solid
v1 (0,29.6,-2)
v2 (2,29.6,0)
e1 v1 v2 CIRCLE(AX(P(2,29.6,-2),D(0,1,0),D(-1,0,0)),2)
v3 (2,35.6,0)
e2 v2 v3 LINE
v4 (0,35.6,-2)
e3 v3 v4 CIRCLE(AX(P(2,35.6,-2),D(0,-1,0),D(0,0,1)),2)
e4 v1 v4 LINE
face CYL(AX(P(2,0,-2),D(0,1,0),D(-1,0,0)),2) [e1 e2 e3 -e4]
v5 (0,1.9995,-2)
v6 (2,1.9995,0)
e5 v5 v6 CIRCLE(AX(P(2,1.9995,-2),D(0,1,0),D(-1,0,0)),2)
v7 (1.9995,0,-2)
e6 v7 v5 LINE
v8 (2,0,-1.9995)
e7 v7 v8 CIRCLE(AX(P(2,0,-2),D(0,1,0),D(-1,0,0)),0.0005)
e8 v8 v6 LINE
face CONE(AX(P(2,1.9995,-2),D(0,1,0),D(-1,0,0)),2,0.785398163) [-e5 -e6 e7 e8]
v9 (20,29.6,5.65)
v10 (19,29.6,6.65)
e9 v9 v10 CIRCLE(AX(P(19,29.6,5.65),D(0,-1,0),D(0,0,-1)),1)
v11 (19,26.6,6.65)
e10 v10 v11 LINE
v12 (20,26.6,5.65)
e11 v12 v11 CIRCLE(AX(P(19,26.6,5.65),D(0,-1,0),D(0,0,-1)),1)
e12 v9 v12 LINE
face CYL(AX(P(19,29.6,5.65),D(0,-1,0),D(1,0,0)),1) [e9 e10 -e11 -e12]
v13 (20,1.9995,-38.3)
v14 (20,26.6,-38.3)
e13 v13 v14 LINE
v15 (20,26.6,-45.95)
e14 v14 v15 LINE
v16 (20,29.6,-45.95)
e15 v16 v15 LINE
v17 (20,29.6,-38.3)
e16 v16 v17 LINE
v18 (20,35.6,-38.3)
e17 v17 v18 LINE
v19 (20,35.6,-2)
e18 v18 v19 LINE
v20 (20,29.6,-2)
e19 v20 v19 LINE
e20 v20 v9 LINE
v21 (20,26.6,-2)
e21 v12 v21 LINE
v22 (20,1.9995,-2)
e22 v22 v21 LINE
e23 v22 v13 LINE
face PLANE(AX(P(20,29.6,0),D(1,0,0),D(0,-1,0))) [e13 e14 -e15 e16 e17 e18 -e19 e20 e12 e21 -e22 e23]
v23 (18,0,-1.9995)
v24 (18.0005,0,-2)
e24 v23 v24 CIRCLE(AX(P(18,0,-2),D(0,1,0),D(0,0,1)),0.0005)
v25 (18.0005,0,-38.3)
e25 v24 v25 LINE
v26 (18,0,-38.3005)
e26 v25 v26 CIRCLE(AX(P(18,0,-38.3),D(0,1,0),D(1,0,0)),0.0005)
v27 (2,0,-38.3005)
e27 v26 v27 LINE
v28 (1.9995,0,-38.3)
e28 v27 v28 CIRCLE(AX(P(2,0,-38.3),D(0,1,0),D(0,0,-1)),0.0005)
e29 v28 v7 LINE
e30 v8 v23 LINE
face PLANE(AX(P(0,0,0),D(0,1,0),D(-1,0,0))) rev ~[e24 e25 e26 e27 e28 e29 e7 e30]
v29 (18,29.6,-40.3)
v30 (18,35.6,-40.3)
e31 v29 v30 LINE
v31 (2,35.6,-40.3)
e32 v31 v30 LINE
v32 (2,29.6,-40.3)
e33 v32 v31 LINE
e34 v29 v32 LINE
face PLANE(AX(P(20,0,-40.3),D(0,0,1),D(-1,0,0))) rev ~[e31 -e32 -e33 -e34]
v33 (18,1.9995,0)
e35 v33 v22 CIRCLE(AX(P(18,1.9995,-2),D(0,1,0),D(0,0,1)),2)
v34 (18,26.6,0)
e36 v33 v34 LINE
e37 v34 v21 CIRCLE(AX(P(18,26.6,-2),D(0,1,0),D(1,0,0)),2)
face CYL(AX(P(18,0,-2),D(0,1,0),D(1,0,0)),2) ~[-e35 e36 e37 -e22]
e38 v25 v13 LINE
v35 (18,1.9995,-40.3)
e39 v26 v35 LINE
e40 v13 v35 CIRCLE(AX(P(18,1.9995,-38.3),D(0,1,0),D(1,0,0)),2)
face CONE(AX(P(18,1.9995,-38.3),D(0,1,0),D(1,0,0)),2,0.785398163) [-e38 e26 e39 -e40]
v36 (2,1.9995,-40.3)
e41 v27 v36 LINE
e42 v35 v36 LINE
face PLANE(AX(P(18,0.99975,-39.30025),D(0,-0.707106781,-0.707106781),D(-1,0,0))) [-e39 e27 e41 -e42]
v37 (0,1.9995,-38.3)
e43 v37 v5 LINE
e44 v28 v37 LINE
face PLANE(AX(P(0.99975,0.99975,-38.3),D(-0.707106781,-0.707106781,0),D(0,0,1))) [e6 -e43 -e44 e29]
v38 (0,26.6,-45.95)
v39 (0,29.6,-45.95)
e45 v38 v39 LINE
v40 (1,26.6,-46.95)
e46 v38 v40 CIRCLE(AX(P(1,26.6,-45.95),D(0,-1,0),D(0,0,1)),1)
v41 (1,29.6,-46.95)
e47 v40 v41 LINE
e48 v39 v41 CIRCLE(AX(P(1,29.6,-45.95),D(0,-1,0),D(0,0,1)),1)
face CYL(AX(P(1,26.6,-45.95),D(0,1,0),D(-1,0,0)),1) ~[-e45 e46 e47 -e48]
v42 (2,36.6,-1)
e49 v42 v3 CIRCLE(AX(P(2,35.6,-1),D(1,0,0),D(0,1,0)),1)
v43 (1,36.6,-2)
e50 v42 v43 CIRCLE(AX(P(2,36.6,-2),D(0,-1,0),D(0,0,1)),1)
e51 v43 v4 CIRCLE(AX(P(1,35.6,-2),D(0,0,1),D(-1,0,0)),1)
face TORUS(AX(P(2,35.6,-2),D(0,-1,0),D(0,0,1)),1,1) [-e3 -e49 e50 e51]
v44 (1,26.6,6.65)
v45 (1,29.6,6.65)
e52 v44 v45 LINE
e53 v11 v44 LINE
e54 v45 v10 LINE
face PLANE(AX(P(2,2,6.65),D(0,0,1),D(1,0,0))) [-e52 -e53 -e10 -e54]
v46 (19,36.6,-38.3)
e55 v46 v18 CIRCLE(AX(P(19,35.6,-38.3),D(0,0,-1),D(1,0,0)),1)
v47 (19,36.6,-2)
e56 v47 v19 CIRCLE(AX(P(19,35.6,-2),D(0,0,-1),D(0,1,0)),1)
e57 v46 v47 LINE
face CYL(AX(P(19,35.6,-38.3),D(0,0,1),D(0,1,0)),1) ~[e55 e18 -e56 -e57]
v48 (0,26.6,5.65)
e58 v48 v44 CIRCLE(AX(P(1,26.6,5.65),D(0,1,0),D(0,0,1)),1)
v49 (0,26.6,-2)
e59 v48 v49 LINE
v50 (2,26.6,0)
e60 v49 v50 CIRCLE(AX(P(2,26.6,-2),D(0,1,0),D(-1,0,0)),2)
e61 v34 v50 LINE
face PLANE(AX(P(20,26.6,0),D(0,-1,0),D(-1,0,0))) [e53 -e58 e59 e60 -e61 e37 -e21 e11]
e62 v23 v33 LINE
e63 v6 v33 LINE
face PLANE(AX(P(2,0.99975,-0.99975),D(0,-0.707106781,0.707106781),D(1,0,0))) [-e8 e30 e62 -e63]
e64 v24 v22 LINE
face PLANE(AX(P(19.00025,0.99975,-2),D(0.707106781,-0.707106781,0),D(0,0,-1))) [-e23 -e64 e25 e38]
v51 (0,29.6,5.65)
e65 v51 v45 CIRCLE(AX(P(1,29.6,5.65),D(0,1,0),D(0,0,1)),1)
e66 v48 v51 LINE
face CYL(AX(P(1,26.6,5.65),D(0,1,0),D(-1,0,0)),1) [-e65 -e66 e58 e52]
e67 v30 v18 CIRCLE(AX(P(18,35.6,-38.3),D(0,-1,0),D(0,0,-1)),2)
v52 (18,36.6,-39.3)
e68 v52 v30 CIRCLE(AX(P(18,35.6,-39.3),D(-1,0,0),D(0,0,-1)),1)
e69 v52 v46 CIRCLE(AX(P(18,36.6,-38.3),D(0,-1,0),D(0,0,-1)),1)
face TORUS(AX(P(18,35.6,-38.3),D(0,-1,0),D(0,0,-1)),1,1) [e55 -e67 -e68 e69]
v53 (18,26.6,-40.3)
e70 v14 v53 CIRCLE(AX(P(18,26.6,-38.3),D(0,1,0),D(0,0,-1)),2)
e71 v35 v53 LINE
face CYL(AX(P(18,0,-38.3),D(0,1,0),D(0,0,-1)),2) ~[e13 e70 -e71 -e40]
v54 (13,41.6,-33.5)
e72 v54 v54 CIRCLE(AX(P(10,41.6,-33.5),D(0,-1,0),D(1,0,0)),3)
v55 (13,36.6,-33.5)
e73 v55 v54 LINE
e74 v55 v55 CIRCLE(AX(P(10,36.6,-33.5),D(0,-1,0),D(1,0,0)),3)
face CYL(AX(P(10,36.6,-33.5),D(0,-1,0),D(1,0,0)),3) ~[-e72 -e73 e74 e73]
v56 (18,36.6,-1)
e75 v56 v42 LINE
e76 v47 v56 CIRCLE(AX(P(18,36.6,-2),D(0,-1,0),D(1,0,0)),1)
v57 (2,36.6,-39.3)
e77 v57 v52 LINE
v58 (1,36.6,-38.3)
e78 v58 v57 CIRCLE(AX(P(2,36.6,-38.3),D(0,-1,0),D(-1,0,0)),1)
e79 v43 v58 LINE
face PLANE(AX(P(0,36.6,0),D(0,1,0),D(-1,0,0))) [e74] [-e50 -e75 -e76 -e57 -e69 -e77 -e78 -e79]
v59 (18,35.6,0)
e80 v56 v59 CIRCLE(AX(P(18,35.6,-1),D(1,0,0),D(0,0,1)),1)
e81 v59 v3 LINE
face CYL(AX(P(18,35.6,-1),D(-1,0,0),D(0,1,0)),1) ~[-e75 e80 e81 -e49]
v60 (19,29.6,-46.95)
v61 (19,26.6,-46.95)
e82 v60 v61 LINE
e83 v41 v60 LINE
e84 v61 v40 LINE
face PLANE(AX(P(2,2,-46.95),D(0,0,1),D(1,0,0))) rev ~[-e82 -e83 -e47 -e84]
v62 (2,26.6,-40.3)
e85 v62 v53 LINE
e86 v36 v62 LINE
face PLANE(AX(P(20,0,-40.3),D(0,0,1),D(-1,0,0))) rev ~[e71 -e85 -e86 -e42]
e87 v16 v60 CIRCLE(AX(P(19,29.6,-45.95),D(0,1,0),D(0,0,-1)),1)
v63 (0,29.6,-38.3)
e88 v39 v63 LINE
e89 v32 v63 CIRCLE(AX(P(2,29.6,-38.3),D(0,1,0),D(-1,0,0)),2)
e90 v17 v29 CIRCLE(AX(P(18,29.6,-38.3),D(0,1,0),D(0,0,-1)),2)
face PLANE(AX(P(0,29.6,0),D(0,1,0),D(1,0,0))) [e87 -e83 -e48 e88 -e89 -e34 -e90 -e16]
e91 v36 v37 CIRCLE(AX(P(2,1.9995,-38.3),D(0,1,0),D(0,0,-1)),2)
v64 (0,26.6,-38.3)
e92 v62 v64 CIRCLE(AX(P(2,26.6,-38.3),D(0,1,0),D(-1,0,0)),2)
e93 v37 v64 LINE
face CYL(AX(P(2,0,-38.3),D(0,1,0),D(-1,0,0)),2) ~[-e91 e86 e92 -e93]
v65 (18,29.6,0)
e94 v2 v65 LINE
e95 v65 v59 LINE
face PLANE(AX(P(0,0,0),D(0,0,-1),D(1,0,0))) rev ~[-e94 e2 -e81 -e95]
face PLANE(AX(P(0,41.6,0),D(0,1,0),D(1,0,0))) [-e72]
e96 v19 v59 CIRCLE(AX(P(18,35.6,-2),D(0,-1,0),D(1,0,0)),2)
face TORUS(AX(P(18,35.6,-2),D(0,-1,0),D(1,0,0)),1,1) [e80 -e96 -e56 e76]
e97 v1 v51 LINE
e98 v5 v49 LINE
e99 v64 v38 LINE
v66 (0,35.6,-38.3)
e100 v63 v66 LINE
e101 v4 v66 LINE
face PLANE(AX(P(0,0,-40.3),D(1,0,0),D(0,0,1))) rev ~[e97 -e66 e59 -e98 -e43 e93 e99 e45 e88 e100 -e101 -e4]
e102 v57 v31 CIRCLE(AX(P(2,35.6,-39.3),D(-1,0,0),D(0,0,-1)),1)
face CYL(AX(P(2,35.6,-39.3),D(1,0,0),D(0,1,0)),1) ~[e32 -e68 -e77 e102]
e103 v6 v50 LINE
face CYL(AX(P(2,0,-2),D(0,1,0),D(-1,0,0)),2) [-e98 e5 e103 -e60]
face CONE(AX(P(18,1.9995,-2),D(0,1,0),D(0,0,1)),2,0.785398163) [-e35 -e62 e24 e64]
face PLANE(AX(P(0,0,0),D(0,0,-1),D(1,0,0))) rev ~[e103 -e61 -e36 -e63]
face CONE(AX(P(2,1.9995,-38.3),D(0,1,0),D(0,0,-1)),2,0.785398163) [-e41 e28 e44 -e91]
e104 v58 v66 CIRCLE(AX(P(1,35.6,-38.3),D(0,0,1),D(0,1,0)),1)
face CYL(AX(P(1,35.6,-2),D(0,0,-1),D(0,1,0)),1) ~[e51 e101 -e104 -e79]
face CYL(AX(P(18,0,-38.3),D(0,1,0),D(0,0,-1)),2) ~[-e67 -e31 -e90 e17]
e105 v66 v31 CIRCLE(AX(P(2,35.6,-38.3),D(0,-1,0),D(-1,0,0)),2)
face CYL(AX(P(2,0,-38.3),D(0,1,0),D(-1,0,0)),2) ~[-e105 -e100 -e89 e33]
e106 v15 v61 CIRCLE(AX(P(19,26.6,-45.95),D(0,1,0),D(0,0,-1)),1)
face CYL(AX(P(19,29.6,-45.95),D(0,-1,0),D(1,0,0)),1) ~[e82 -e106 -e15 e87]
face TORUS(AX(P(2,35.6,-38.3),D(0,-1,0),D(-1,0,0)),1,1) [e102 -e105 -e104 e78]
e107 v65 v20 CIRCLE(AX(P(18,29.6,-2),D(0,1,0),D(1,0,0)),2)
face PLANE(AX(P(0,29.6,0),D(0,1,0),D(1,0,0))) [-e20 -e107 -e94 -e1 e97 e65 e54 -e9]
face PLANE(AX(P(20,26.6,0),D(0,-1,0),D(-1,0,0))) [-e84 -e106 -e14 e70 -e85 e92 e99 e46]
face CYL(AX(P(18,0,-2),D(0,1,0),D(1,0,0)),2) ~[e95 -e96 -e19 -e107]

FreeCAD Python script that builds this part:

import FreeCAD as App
import Part
import Sketcher


def edges_at(feature, points):
    """Names of the edges that pass closest to the given points."""
    edges = feature.Shape.Edges
    near = lambda p: min(range(len(edges)), key=lambda i: edges[i].distToShape(Part.Vertex(*p))[0])
    return sorted({f"Edge{near(p) + 1}" for p in points})


def add_polygon(sketch, points):
    """Adds a closed chain of lines whose ends are joined by coincident constraints."""
    first, n = sketch.GeometryCount, len(points)
    for a, b in zip(points, points[1:] + points[:1]):
        sketch.addGeometry(Part.LineSegment(App.Vector(*a, 0), App.Vector(*b, 0)), False)
    for i in range(n):
        sketch.addConstraint(Sketcher.Constraint("Coincident", first + i, 2, first + (i + 1) % n, 1))

doc = App.newDocument("Part")
body = doc.addObject("PartDesign::Body", "Body")

# Sketch on XZ plane
sketch1 = body.newObject("Sketcher::SketchObject", "Sketch")
sketch1.AttachmentSupport = (doc.getObject("XZ_Plane"), [""])
sketch1.MapMode = "FlatFace"
add_polygon(sketch1, [(0, -40), (0, 0), (20, 0), (20, -40)])  # lines 0-3
sketch1.addConstraint(Sketcher.Constraint("Vertical", 0))
sketch1.addConstraint(Sketcher.Constraint("Horizontal", 1))
sketch1.addConstraint(Sketcher.Constraint("Vertical", 2))
sketch1.addConstraint(Sketcher.Constraint("Horizontal", 3))
sketch1.addConstraint(Sketcher.Constraint("Coincident", 0, 2, -1, 1))
sketch1.addConstraint(Sketcher.Constraint("DistanceX", 1, 1, 1, 2, 20.0))
sketch1.addConstraint(Sketcher.Constraint("DistanceY", 0, 1, 0, 2, 40.3))
pad1 = body.newObject("PartDesign::Pad", "Pad")
pad1.Profile = sketch1
pad1.Length = 36.6
pad1.Reversed = True
doc.recompute()

fillet = body.newObject("PartDesign::Fillet", "Fillet")
fillet.Base = (pad1, edges_at(pad1, [
    (20, 18.3, 0),
    (0, 18.3, 0),
    (20, 18.3, -40.3),
    (0, 18.3, -40.3),
]))
fillet.Radius = 2
doc.recompute()

chamfer = body.newObject("PartDesign::Chamfer", "Chamfer")
chamfer.Base = (fillet, edges_at(fillet, [
    (20, 0, -20.15),
    (19.414, 0, -39.714),
    (10, 0, -40.3),
    (0.586, 0, -39.714),
    (0, 0, -20.15),
    (0.586, 0, -0.586),
    (10, 0, 0),
    (19.414, 0, -0.586),
]))
chamfer.Size = 2
doc.recompute()

fillet2 = body.newObject("PartDesign::Fillet", "Fillet001")
fillet2.Base = (chamfer, edges_at(chamfer, [
    (19.414, 36.6, -39.714),
    (10, 36.6, -40.3),
    (0.586, 36.6, -39.714),
    (0, 36.6, -20.15),
    (0.586, 36.6, -0.586),
    (10, 36.6, 0),
    (19.414, 36.6, -0.586),
    (20, 36.6, -20.15),
]))
fillet2.Radius = 1

# Sketch on XZ plane
sketch2 = body.newObject("Sketcher::SketchObject", "Sketch001")
sketch2.AttachmentSupport = (doc.getObject("XZ_Plane"), [""])
sketch2.MapMode = "FlatFace"
sketch2.AttachmentOffset = App.Placement(App.Vector(0, 0, -36.6), App.Rotation())
sketch2.addGeometry(Part.Circle(App.Vector(10, -33.5, 0), App.Vector(0, 0, 1), 3), False)
sketch2.addConstraint(Sketcher.Constraint("Diameter", 0, 6.0))
sketch2.addConstraint(Sketcher.Constraint("DistanceY", 0, 3, -1, 1, 33.5))
sketch2.addConstraint(Sketcher.Constraint("DistanceX", -1, 1, 0, 3, 10.0))
pad2 = body.newObject("PartDesign::Pad", "Pad001")
pad2.Profile = sketch2
pad2.Length = 5
pad2.Reversed = True

# Sketch on XY plane
sketch3 = body.newObject("Sketcher::SketchObject", "Sketch002")
sketch3.AttachmentSupport = (doc.getObject("XY_Plane"), [""])
sketch3.MapMode = "FlatFace"
add_polygon(sketch3, [(20, 26.6), (20, 29.6), (0, 29.6), (0, 26.6)])  # lines 0-3
sketch3.addConstraint(Sketcher.Constraint("Vertical", 0))
sketch3.addConstraint(Sketcher.Constraint("Horizontal", 1))
sketch3.addConstraint(Sketcher.Constraint("Vertical", 2))
sketch3.addConstraint(Sketcher.Constraint("Horizontal", 3))
sketch3.addConstraint(Sketcher.Constraint("PointOnObject", 1, 2, -2))
sketch3.addConstraint(Sketcher.Constraint("DistanceY", 0, 1, 0, 2, 3.0))
sketch3.addConstraint(Sketcher.Constraint("DistanceY", -1, 1, 2, 2, 26.6))
sketch3.addConstraint(Sketcher.Constraint("DistanceX", 1, 2, 1, 1, 20.0))
pad3 = body.newObject("PartDesign::Pad", "Pad002")
pad3.Profile = sketch3
pad3.Type = "TwoLengths"
pad3.Length = 6.65
pad3.Length2 = 46.95
doc.recompute()

fillet3 = body.newObject("PartDesign::Fillet", "Fillet002")
fillet3.Base = (pad3, edges_at(pad3, [
    (20, 28.1, 6.65),
    (0, 28.1, 6.65),
    (20, 28.1, -46.95),
    (0, 28.1, -46.95),
]))
fillet3.Radius = 1

doc.recompute()
